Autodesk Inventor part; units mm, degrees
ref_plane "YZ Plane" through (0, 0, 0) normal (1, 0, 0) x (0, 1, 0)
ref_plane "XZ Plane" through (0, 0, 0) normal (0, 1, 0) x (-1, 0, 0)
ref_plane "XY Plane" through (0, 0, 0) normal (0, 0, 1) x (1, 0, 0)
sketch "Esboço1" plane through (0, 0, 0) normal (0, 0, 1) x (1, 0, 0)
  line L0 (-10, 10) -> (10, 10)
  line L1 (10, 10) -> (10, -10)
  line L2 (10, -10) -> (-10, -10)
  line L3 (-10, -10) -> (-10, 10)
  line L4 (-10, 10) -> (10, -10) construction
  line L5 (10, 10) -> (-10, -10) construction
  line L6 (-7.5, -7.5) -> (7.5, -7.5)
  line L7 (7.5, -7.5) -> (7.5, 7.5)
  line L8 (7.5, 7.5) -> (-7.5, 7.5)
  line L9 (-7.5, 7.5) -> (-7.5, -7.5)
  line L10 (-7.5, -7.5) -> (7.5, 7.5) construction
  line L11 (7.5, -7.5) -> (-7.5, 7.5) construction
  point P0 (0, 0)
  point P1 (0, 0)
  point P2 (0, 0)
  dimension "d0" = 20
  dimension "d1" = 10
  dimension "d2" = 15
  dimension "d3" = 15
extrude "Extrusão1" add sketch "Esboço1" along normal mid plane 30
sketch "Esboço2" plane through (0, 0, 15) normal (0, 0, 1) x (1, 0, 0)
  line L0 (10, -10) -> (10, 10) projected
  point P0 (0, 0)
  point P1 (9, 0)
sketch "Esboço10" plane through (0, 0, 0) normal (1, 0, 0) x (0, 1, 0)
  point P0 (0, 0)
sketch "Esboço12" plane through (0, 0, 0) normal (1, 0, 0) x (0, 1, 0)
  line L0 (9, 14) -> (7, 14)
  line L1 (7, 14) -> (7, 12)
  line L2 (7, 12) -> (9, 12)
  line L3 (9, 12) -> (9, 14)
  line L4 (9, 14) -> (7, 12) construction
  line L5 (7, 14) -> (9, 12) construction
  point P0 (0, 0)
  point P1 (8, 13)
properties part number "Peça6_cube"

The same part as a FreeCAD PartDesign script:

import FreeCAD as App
import Part
import Sketcher

V = App.Vector
Q = App.Units.Quantity


def add_polygon(sketch, points):
    """Adds a closed chain of lines whose ends are joined by coincident constraints."""
    first, n = sketch.GeometryCount, len(points)
    for a, b in zip(points, points[1:] + points[:1]):
        sketch.addGeometry(Part.LineSegment(App.Vector(*a, 0), App.Vector(*b, 0)), False)
    for i in range(n):
        sketch.addConstraint(Sketcher.Constraint("Coincident", first + i, 2, first + (i + 1) % n, 1))

doc = App.newDocument("Part")
body = doc.addObject("PartDesign::Body", "Body")

sketch1 = doc.addObject("Sketcher::SketchObject", "Sketch")
body.addObject(sketch1)
sketch1.AttachmentSupport = (doc.XY_Plane, [""])
sketch1.MapMode = "FlatFace"
add_polygon(sketch1, [(10, 10), (-10, 10), (-10, -10), (10, -10)])
add_polygon(sketch1, [(7.5, -7.5), (-7.5, -7.5), (-7.5, 7.5), (7.5, 7.5)])
sketch1.addConstraint(Sketcher.Constraint("Horizontal", 0))
sketch1.addConstraint(Sketcher.Constraint("Vertical", 1))
sketch1.addConstraint(Sketcher.Constraint("Horizontal", 2))
sketch1.addConstraint(Sketcher.Constraint("Vertical", 3))
sketch1.addConstraint(Sketcher.Constraint("Horizontal", 4))
sketch1.addConstraint(Sketcher.Constraint("Vertical", 5))
sketch1.addConstraint(Sketcher.Constraint("Horizontal", 6))
sketch1.addConstraint(Sketcher.Constraint("Vertical", 7))
sketch1.addConstraint(Sketcher.Constraint("Symmetric", 0, 2, 2, 2, -1, 1))
sketch1.addConstraint(Sketcher.Constraint("Symmetric", 4, 2, 6, 2, -1, 1))
sketch1.addConstraint(Sketcher.Constraint("Equal", 2, 1))
sketch1.addConstraint(Sketcher.Constraint("Equal", 6, 5))
sketch1.addConstraint(Sketcher.Constraint("DistanceX", 0, 2, 0, 1, Q("20 mm")))
sketch1.addConstraint(Sketcher.Constraint("DistanceX", 4, 2, 4, 1, Q("15 mm")))
pad1 = doc.addObject("PartDesign::Pad", "Pad")
body.addObject(pad1)
pad1.Profile = sketch1
pad1.Length = 30
pad1.Midplane = True

doc.recompute()
